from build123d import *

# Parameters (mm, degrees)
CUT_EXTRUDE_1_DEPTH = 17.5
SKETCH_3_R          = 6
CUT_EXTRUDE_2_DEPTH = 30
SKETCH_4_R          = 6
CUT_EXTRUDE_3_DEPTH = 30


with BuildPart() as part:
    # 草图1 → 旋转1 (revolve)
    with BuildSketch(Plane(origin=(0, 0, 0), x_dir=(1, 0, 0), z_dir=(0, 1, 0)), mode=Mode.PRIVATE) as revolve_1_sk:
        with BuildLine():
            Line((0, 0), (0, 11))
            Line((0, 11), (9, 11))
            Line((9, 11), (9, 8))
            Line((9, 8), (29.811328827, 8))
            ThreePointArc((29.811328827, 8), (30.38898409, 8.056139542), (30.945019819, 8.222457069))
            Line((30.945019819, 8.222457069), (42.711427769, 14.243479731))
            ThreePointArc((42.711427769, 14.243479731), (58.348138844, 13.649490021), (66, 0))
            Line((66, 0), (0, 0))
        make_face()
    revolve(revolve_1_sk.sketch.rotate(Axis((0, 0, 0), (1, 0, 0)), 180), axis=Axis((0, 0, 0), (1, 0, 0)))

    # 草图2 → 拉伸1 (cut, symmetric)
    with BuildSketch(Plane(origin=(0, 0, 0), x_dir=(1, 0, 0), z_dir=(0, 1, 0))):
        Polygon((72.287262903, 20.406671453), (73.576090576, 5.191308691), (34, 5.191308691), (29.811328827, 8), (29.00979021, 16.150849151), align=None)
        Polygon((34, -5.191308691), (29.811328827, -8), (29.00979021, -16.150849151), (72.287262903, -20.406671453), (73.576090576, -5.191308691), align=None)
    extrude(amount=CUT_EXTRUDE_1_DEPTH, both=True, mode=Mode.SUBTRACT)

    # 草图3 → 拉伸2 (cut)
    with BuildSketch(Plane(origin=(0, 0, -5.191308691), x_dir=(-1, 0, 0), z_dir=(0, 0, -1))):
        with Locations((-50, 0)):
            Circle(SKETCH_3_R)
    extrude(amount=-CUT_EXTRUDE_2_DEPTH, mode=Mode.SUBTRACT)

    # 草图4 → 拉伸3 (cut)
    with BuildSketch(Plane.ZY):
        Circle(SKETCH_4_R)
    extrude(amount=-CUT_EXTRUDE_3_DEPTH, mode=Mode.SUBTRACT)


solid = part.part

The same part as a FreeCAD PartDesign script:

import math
import FreeCAD as App
import Part
import Sketcher
from FreeCAD import Vector

doc = App.newDocument("Part")
body = doc.addObject("PartDesign::Body", "Body")

# Sketch on XZ plane
sketch1 = body.newObject("Sketcher::SketchObject", "Sketch")
sketch1.AttachmentSupport = (doc.getObject("XZ_Plane"), [""])
sketch1.MapMode = "FlatFace"
sketch1.addGeometry([
    Part.LineSegment(Vector(0, -11, 0), Vector(0, 0, 0)),  # 0
    Part.LineSegment(Vector(0, 0, 0), Vector(66, 0, 0)),  # 1
    Part.ArcOfCircle(Part.Circle(Vector(50, 0, 0), Vector(0, 0, 1), 16), math.radians(-117.099412), math.radians(0)),  # 2
    Part.LineSegment(Vector(42.711428, -14.24348, 0), Vector(30.94502, -8.222457, 0)),  # 3
    Part.ArcOfCircle(Part.Circle(Vector(29.811329, -11, 0), Vector(0, 0, 1), 3), math.radians(67.796521), math.radians(90)),  # 4
    Part.LineSegment(Vector(29.811329, -8, 0), Vector(9, -8, 0)),  # 5
    Part.LineSegment(Vector(9, -8, 0), Vector(9, -11, 0)),  # 6
    Part.LineSegment(Vector(9, -11, 0), Vector(0, -11, 0)),  # 7
], False)
sketch1.addConstraint([
    Sketcher.Constraint("Coincident", 0, 2, 1, 1),
    Sketcher.Constraint("Coincident", 1, 2, 2, 2),
    Sketcher.Constraint("Tangent", 2, 1, 3, 1),
    Sketcher.Constraint("Coincident", 3, 2, 4, 1),
    Sketcher.Constraint("Tangent", 4, 2, 5, 1),
    Sketcher.Constraint("Coincident", 5, 2, 6, 1),
    Sketcher.Constraint("Coincident", 6, 2, 7, 1),
    Sketcher.Constraint("Coincident", 7, 2, 0, 1),
    Sketcher.Constraint("Vertical", 0),
    Sketcher.Constraint("Horizontal", 1),
    Sketcher.Constraint("Horizontal", 5),
    Sketcher.Constraint("Vertical", 6),
    Sketcher.Constraint("Horizontal", 7),
    Sketcher.Constraint("Coincident", 0, 2, -1, 1),
    Sketcher.Constraint("PointOnObject", 2, 3, -1),
    Sketcher.Constraint("Horizontal", 4, 3, 6, 2),
    Sketcher.Constraint("Radius", 2, 16.0),
    Sketcher.Constraint("Radius", 4, 3.0),
    Sketcher.Constraint("DistanceX", 1, 1, 1, 2, 66.0),
    Sketcher.Constraint("DistanceX", 7, 2, 7, 1, 9.0),
    Sketcher.Constraint("DistanceY", 0, 1, 0, 2, 11.0),
    Sketcher.Constraint("DistanceX", 5, 2, 5, 1, 20.811329),
    Sketcher.Constraint("DistanceX", 4, 3, 2, 1, 12.900099),
])
revolution = body.newObject("PartDesign::Revolution", "Revolution")
revolution.Profile = sketch1
revolution.ReferenceAxis = (sketch1, ["H_Axis"])
revolution.Angle = 360

# Sketch on XZ plane
sketch2 = body.newObject("Sketcher::SketchObject", "Sketch001")
sketch2.AttachmentSupport = (doc.getObject("XZ_Plane"), [""])
sketch2.MapMode = "FlatFace"
sketch2.addGeometry([
    Part.LineSegment(Vector(73.576091, -5.191309, 0), Vector(72.287263, -20.406671, 0)),  # 0
    Part.LineSegment(Vector(72.287263, -20.406671, 0), Vector(29.00979, -16.150849, 0)),  # 1
    Part.LineSegment(Vector(29.00979, -16.150849, 0), Vector(29.811329, -8, 0)),  # 2
    Part.LineSegment(Vector(29.811329, -8, 0), Vector(34, -5.191309, 0)),  # 3
    Part.LineSegment(Vector(34, -5.191309, 0), Vector(73.576091, -5.191309, 0)),  # 4
    Part.LineSegment(Vector(34, 5.191309, 0), Vector(29.811329, 8, 0)),  # 5
    Part.LineSegment(Vector(29.811329, 8, 0), Vector(29.00979, 16.150849, 0)),  # 6
    Part.LineSegment(Vector(29.00979, 16.150849, 0), Vector(72.287263, 20.406671, 0)),  # 7
    Part.LineSegment(Vector(72.287263, 20.406671, 0), Vector(73.576091, 5.191309, 0)),  # 8
    Part.LineSegment(Vector(73.576091, 5.191309, 0), Vector(34, 5.191309, 0)),  # 9
], False)
sketch2.addConstraint([
    Sketcher.Constraint("Coincident", 0, 2, 1, 1),
    Sketcher.Constraint("Coincident", 1, 2, 2, 1),
    Sketcher.Constraint("Coincident", 2, 2, 3, 1),
    Sketcher.Constraint("Coincident", 3, 2, 4, 1),
    Sketcher.Constraint("Coincident", 4, 2, 0, 1),
    Sketcher.Constraint("Coincident", 5, 2, 6, 1),
    Sketcher.Constraint("Coincident", 6, 2, 7, 1),
    Sketcher.Constraint("Coincident", 7, 2, 8, 1),
    Sketcher.Constraint("Coincident", 8, 2, 9, 1),
    Sketcher.Constraint("Coincident", 9, 2, 5, 1),
    Sketcher.Constraint("Horizontal", 4),
    Sketcher.Constraint("Horizontal", 9),
    Sketcher.Constraint("Symmetric", 2, 2, 5, 2, -1),
    Sketcher.Constraint("Symmetric", 1, 2, 6, 2, -1),
    Sketcher.Constraint("Symmetric", 0, 2, 7, 2, -1),
    Sketcher.Constraint("Symmetric", 4, 2, 8, 2, -1),
    Sketcher.Constraint("Perpendicular", 1, 2),
    Sketcher.Constraint("Vertical", 3, 2, 9, 2),
    Sketcher.Constraint("DistanceY", 2, 2, -1, 1, 8.0),
    Sketcher.Constraint("DistanceX", -1, 1, 3, 2, 34.0),
    Sketcher.Constraint("DistanceX", 4, 1, 4, 2, 39.576091),
    Sketcher.Constraint("DistanceX", 1, 2, 4, 2, 44.5663),
    Sketcher.Constraint("DistanceY", 1, 2, 6, 2, 32.301698),
    Sketcher.Constraint("Distance", 0, 15.269851),
    Sketcher.Constraint("DistanceY", 0, 2, -1, 1, 20.406671),
    Sketcher.Constraint("DistanceX", -1, 1, 2, 2, 29.811329),
])
pocket1 = body.newObject("PartDesign::Pocket", "Pocket")
pocket1.Profile = sketch2
pocket1.Length = 35
pocket1.Midplane = True

# Sketch on XY plane
sketch3 = body.newObject("Sketcher::SketchObject", "Sketch002")
sketch3.AttachmentSupport = (doc.getObject("XY_Plane"), [""])
sketch3.MapMode = "FlatFace"
sketch3.AttachmentOffset = App.Placement(Vector(0, 0, -5.191309), App.Rotation())
sketch3.addGeometry(Part.Circle(Vector(50, 0, 0), Vector(0, 0, 1), 6), False)
sketch3.addConstraint([
    Sketcher.Constraint("PointOnObject", 0, 3, -1),
    Sketcher.Constraint("Diameter", 0, 12.0),
    Sketcher.Constraint("DistanceX", -1, 1, 0, 3, 50.0),
])
pocket2 = body.newObject("PartDesign::Pocket", "Pocket001")
pocket2.Profile = sketch3
pocket2.Length = 30
pocket2.Reversed = True

# Sketch on YZ plane
sketch4 = body.newObject("Sketcher::SketchObject", "Sketch003")
sketch4.AttachmentSupport = (doc.getObject("YZ_Plane"), [""])
sketch4.MapMode = "FlatFace"
sketch4.addGeometry(Part.Circle(Vector(0, 0, 0), Vector(0, 0, 1), 6), False)
sketch4.addConstraint([
    Sketcher.Constraint("Coincident", 0, 3, -1, 1),
    Sketcher.Constraint("Diameter", 0, 12.0),
])
pocket3 = body.newObject("PartDesign::Pocket", "Pocket002")
pocket3.Profile = sketch4
pocket3.Length = 30
pocket3.Reversed = True

doc.recompute()
